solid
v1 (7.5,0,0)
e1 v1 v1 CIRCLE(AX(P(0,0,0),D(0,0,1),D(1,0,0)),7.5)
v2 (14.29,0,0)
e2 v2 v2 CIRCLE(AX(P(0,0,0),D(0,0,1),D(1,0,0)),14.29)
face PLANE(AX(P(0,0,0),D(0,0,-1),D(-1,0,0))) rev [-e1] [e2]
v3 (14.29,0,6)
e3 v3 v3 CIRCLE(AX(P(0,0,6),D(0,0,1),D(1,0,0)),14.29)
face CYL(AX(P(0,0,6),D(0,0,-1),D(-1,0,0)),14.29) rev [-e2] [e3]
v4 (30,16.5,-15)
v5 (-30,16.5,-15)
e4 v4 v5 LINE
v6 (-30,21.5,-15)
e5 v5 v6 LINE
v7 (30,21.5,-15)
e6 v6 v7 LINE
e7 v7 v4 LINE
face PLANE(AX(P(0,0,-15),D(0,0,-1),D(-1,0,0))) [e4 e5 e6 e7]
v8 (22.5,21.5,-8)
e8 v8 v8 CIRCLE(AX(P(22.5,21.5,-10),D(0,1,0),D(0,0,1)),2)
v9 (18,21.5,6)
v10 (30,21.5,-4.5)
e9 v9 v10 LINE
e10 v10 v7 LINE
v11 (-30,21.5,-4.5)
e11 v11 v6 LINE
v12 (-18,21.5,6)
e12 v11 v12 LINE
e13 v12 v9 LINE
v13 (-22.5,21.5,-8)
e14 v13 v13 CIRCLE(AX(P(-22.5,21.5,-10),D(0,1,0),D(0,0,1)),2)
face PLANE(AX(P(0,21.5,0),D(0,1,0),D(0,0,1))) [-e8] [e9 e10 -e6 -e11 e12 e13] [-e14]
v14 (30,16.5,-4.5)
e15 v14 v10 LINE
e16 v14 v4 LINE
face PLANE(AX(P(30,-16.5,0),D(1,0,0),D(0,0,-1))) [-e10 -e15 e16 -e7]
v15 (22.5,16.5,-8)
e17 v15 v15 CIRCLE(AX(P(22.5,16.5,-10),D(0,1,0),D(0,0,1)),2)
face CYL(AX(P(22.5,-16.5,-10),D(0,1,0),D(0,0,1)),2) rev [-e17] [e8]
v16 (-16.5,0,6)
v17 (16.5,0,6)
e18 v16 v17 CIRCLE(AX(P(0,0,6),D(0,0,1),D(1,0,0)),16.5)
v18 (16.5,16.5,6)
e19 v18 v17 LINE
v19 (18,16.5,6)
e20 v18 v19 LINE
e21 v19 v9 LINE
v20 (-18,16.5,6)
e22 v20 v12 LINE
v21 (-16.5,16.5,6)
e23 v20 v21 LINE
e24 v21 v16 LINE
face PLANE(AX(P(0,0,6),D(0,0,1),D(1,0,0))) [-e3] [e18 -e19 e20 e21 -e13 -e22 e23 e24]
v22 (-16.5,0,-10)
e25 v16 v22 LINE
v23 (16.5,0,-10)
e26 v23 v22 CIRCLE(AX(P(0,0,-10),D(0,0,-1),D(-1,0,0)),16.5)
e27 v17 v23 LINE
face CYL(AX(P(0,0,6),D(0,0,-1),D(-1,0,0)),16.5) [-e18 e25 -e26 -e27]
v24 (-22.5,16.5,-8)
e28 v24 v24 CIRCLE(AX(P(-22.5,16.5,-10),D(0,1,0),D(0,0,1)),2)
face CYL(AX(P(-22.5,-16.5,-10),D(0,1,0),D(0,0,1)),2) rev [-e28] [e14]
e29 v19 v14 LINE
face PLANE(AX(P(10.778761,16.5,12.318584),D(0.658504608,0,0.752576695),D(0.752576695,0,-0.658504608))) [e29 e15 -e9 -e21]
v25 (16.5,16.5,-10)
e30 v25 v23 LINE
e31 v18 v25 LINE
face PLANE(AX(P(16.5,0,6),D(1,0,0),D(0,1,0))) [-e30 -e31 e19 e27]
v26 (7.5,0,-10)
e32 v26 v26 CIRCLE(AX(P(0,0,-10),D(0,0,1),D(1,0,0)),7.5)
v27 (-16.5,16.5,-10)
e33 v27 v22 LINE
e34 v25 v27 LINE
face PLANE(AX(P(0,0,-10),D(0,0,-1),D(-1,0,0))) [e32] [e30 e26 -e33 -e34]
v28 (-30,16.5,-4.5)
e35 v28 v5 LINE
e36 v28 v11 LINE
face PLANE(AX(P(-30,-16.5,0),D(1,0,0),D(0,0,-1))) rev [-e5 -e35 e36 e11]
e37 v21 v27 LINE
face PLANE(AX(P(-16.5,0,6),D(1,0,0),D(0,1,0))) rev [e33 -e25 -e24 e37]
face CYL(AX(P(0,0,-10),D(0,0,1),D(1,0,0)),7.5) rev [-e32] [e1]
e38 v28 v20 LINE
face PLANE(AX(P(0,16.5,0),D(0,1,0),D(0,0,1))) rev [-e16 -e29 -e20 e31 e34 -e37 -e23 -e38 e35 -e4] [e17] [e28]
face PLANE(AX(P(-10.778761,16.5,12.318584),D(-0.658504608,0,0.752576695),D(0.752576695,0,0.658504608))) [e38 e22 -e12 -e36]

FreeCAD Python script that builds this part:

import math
import FreeCAD as App
import Part
import Sketcher
from FreeCAD import Vector

doc = App.newDocument("Part")
body = doc.addObject("PartDesign::Body", "Body")

# Sketch on XY plane
sketch1 = body.newObject("Sketcher::SketchObject", "Sketch")
sketch1.AttachmentSupport = (doc.getObject("XY_Plane"), [""])
sketch1.MapMode = "FlatFace"
sketch1.addGeometry([
    Part.Circle(Vector(0, 0, 0), Vector(0, 0, 1), 16.5),
    Part.Circle(Vector(0, 0, 0), Vector(0, 0, 1), 14.29),
], False)
sketch1.addConstraint([
    Sketcher.Constraint("Coincident", 0, 3, -1, 1),
    Sketcher.Constraint("Coincident", 1, 3, -1, 1),
    Sketcher.Constraint("Diameter", 0, 33.0),
    Sketcher.Constraint("Diameter", 1, 28.58),
])
pad1 = body.newObject("PartDesign::Pad", "Pad")
pad1.Profile = sketch1
pad1.Length = 6

# Sketch on XY plane
sketch2 = body.newObject("Sketcher::SketchObject", "Sketch001")
sketch2.AttachmentSupport = (doc.getObject("XY_Plane"), [""])
sketch2.MapMode = "FlatFace"
sketch2.AttachmentOffset = App.Placement(Vector(0, 0, -10), App.Rotation())
sketch2.addGeometry(Part.Circle(Vector(0, 0, 0), Vector(0, 0, 1), 16.5), False)
sketch2.addConstraint([
    Sketcher.Constraint("Coincident", 0, 3, -1, 1),
    Sketcher.Constraint("Diameter", 0, 33.0),
])
pad2 = body.newObject("PartDesign::Pad", "Pad001")
pad2.Profile = sketch2
pad2.Length = 10
body2 = doc.addObject("PartDesign::Body", "Body001")

# Sketch on XZ plane
sketch3 = body2.newObject("Sketcher::SketchObject", "Sketch002")
sketch3.AttachmentSupport = (doc.getObject("XZ_Plane001"), [""])
sketch3.MapMode = "FlatFace"
sketch3.AttachmentOffset = App.Placement(Vector(0, 0, -16.5), App.Rotation())
sketch3.addGeometry([
    Part.LineSegment(Vector(40, -10, 0), Vector(-40, -10, 0)),
    Part.LineSegment(Vector(-40, -10, 0), Vector(-40, 10, 0)),
    Part.LineSegment(Vector(-40, 10, 0), Vector(40, 10, 0)),
    Part.LineSegment(Vector(40, 10, 0), Vector(40, -10, 0)),
], False)
sketch3.addConstraint([
    Sketcher.Constraint("Coincident", 0, 2, 1, 1),
    Sketcher.Constraint("Coincident", 1, 2, 2, 1),
    Sketcher.Constraint("Coincident", 2, 2, 3, 1),
    Sketcher.Constraint("Coincident", 3, 2, 0, 1),
    Sketcher.Constraint("Horizontal", 0),
    Sketcher.Constraint("Vertical", 1),
    Sketcher.Constraint("Horizontal", 2),
    Sketcher.Constraint("Vertical", 3),
    Sketcher.Constraint("Symmetric", 0, 2, 2, 2, -1, 1),
    Sketcher.Constraint("DistanceX", 0, 2, 0, 1, 80.0),
    Sketcher.Constraint("DistanceY", 1, 1, 1, 2, 20.0),
])
pad3 = body2.newObject("PartDesign::Pad", "Pad002")
pad3.Profile = sketch3
pad3.Length = 5
pad3.Reversed = True
body.AllowCompound = True
doc.recompute()

boolean = body.newObject("PartDesign::Boolean", "Boolean")
boolean.Type = "Fuse"
boolean.addObjects([body2])

# Sketch on XY plane
sketch4 = body.newObject("Sketcher::SketchObject", "Sketch003")
sketch4.AttachmentSupport = (doc.getObject("XY_Plane"), [""])
sketch4.MapMode = "FlatFace"
sketch4.AttachmentOffset = App.Placement(Vector(0, 0, -10), App.Rotation())
sketch4.addGeometry([
    Part.ArcOfCircle(Part.Circle(Vector(0, 0, 0), Vector(0, 0, 1), 16.5), math.radians(90), math.radians(180)),  # 0
    Part.LineSegment(Vector(0, 16.5, 0), Vector(-16.5, 16.5, 0)),  # 1
    Part.LineSegment(Vector(-16.5, 16.5, 0), Vector(-16.5, 0, 0)),  # 2
    Part.ArcOfCircle(Part.Circle(Vector(0, 0, 0), Vector(0, 0, 1), 16.5), math.radians(0), math.radians(90)),  # 3
    Part.LineSegment(Vector(16.5, 0, 0), Vector(16.5, 16.5, 0)),  # 4
    Part.LineSegment(Vector(16.5, 16.5, 0), Vector(0, 16.5, 0)),  # 5
], False)
sketch4.addConstraint([
    Sketcher.Constraint("Tangent", 0, 1, 1, 1),
    Sketcher.Constraint("Coincident", 1, 2, 2, 1),
    Sketcher.Constraint("Tangent", 2, 2, 0, 2),
    Sketcher.Constraint("Tangent", 3, 1, 4, 1),
    Sketcher.Constraint("Coincident", 4, 2, 5, 1),
    Sketcher.Constraint("Tangent", 5, 2, 3, 2),
    Sketcher.Constraint("Horizontal", 1),
    Sketcher.Constraint("Vertical", 2),
    Sketcher.Constraint("Vertical", 4),
    Sketcher.Constraint("Horizontal", 5),
    Sketcher.Constraint("Coincident", 0, 3, -1, 1),
    Sketcher.Constraint("Coincident", 3, 3, -1, 1),
    Sketcher.Constraint("Equal", 0, 3),
    Sketcher.Constraint("Radius", 0, 16.5),
])
pad4 = body.newObject("PartDesign::Pad", "Pad003")
pad4.Profile = sketch4
pad4.Length = 16

# Sketch on XZ plane
sketch5 = body.newObject("Sketcher::SketchObject", "Sketch004")
sketch5.AttachmentSupport = (doc.getObject("XZ_Plane"), [""])
sketch5.MapMode = "FlatFace"
sketch5.AttachmentOffset = App.Placement(Vector(0, 0, -21.5), App.Rotation())
sketch5.addGeometry([
    Part.LineSegment(Vector(-40, 10, 0), Vector(40, 10, 0)),  # 0
    Part.LineSegment(Vector(40, 10, 0), Vector(40, -10, 0)),  # 1
    Part.LineSegment(Vector(40, -10, 0), Vector(30, -10, 0)),  # 2
    Part.LineSegment(Vector(30, -10, 0), Vector(30, 6, 0)),  # 3
    Part.LineSegment(Vector(30, 6, 0), Vector(-30, 6, 0)),  # 4
    Part.LineSegment(Vector(-30, 6, 0), Vector(-30, -10, 0)),  # 5
    Part.LineSegment(Vector(-30, -10, 0), Vector(-40, -10, 0)),  # 6
    Part.LineSegment(Vector(-40, -10, 0), Vector(-40, 10, 0)),  # 7
    Part.Circle(Vector(22.5, -10, 0), Vector(0, 0, 1), 2),  # 8
    Part.Circle(Vector(-22.5, -10, 0), Vector(0, 0, 1), 2),  # 9
], False)
sketch5.addConstraint([
    Sketcher.Constraint("Coincident", 0, 2, 1, 1),
    Sketcher.Constraint("Coincident", 1, 2, 2, 1),
    Sketcher.Constraint("Coincident", 2, 2, 3, 1),
    Sketcher.Constraint("Coincident", 3, 2, 4, 1),
    Sketcher.Constraint("Coincident", 4, 2, 5, 1),
    Sketcher.Constraint("Coincident", 5, 2, 6, 1),
    Sketcher.Constraint("Coincident", 6, 2, 7, 1),
    Sketcher.Constraint("Coincident", 7, 2, 0, 1),
    Sketcher.Constraint("Horizontal", 0),
    Sketcher.Constraint("Vertical", 1),
    Sketcher.Constraint("Horizontal", 2),
    Sketcher.Constraint("Vertical", 3),
    Sketcher.Constraint("Horizontal", 4),
    Sketcher.Constraint("Vertical", 5),
    Sketcher.Constraint("Horizontal", 6),
    Sketcher.Constraint("Vertical", 7),
    Sketcher.Constraint("Equal", 8, 9),
    Sketcher.Constraint("Symmetric", 0, 2, 6, 2, -1, 1),
    Sketcher.Constraint("Symmetric", 8, 3, 9, 3, -2),
    Sketcher.Constraint("Symmetric", 2, 2, 5, 2, -2),
    Sketcher.Constraint("Horizontal", 9, 3, 1, 2),
    Sketcher.Constraint("Diameter", 8, 4.0),
    Sketcher.Constraint("DistanceX", 0, 1, 0, 2, 80.0),
    Sketcher.Constraint("DistanceX", 2, 2, 2, 1, 10.0),
    Sketcher.Constraint("DistanceY", 1, 2, 1, 1, 20.0),
    Sketcher.Constraint("DistanceY", 3, 1, 3, 2, 16.0),
    Sketcher.Constraint("DistanceX", 9, 3, 8, 3, 45.0),
])
pocket1 = body.newObject("PartDesign::Pocket", "Pocket")
pocket1.Profile = sketch5
pocket1.Type = "ThroughAll"
pocket1.Reversed = True

# Sketch on XY plane
sketch6 = body.newObject("Sketcher::SketchObject", "Sketch005")
sketch6.AttachmentSupport = (doc.getObject("XY_Plane"), [""])
sketch6.MapMode = "FlatFace"
sketch6.addGeometry(Part.Circle(Vector(0, 0, 0), Vector(0, 0, 1), 7.5), False)
sketch6.addConstraint([
    Sketcher.Constraint("Coincident", 0, 3, -1, 1),
    Sketcher.Constraint("Diameter", 0, 15.0),
])
pocket2 = body.newObject("PartDesign::Pocket", "Pocket001")
pocket2.Profile = sketch6
pocket2.Type = "ThroughAll"

# Sketch on XY plane
sketch7 = body.newObject("Sketcher::SketchObject", "Sketch006")
sketch7.AttachmentSupport = (doc.getObject("XY_Plane"), [""])
sketch7.MapMode = "FlatFace"
sketch7.AttachmentOffset = App.Placement(Vector(0, 0, -10), App.Rotation())
sketch7.addGeometry([
    Part.LineSegment(Vector(30, 21.5, 0), Vector(30, 16.5, 0)),
    Part.LineSegment(Vector(30, 16.5, 0), Vector(-30, 16.5, 0)),
    Part.LineSegment(Vector(-30, 16.5, 0), Vector(-30, 21.5, 0)),
    Part.LineSegment(Vector(-30, 21.5, 0), Vector(30, 21.5, 0)),
], False)
sketch7.addConstraint([
    Sketcher.Constraint("Coincident", 0, 2, 1, 1),
    Sketcher.Constraint("Coincident", 1, 2, 2, 1),
    Sketcher.Constraint("Coincident", 2, 2, 3, 1),
    Sketcher.Constraint("Coincident", 3, 2, 0, 1),
    Sketcher.Constraint("Vertical", 0),
    Sketcher.Constraint("Horizontal", 1),
    Sketcher.Constraint("Vertical", 2),
    Sketcher.Constraint("Horizontal", 3),
    Sketcher.Constraint("DistanceX", 1, 2, 1, 1, 60.0),
    Sketcher.Constraint("DistanceY", 0, 2, 0, 1, 5.0),
    Sketcher.Constraint("DistanceX", -1, 1, 0, 2, 30.0),
    Sketcher.Constraint("DistanceY", -1, 1, 0, 2, 16.5),
])
pad5 = body.newObject("PartDesign::Pad", "Pad004")
pad5.Profile = sketch7
pad5.Length = 5
pad5.Reversed = True

# Sketch on XZ plane
sketch8 = body.newObject("Sketcher::SketchObject", "Sketch007")
sketch8.AttachmentSupport = (doc.getObject("XZ_Plane"), [""])
sketch8.MapMode = "FlatFace"
sketch8.AttachmentOffset = App.Placement(Vector(0, 0, -21.5), App.Rotation())
sketch8.addGeometry([
    Part.LineSegment(Vector(-18, 6, 0), Vector(-30, -4.5, 0)),  # 0
    Part.LineSegment(Vector(-30, -4.5, 0), Vector(-30, 6, 0)),  # 1
    Part.LineSegment(Vector(-30, 6, 0), Vector(-18, 6, 0)),  # 2
    Part.LineSegment(Vector(30, -4.5, 0), Vector(18, 6, 0)),  # 3
    Part.LineSegment(Vector(18, 6, 0), Vector(30, 6, 0)),  # 4
    Part.LineSegment(Vector(30, 6, 0), Vector(30, -4.5, 0)),  # 5
    Part.Circle(Vector(22.5, -10, 0), Vector(0, 0, 1), 2),  # 6
    Part.Circle(Vector(-22.5, -10, 0), Vector(0, 0, 1), 2),  # 7
], False)
sketch8.addConstraint([
    Sketcher.Constraint("Coincident", 0, 2, 1, 1),
    Sketcher.Constraint("Coincident", 1, 2, 2, 1),
    Sketcher.Constraint("Coincident", 2, 2, 0, 1),
    Sketcher.Constraint("Coincident", 3, 2, 4, 1),
    Sketcher.Constraint("Coincident", 4, 2, 5, 1),
    Sketcher.Constraint("Coincident", 5, 2, 3, 1),
    Sketcher.Constraint("Vertical", 1),
    Sketcher.Constraint("Horizontal", 2),
    Sketcher.Constraint("Horizontal", 4),
    Sketcher.Constraint("Vertical", 5),
    Sketcher.Constraint("Equal", 6, 7),
    Sketcher.Constraint("Symmetric", 6, 3, 7, 3, -2),
    Sketcher.Constraint("Symmetric", 2, 2, 3, 2, -2),
    Sketcher.Constraint("Symmetric", 0, 2, 5, 2, -2),
    Sketcher.Constraint("Diameter", 6, 4.0),
    Sketcher.Constraint("DistanceX", 2, 1, 2, 2, 12.0),
    Sketcher.Constraint("DistanceY", 1, 1, 1, 2, 10.5),
    Sketcher.Constraint("DistanceY", 6, 3, -1, 1, 10.0),
    Sketcher.Constraint("DistanceX", 0, 2, -1, 1, 30.0),
    Sketcher.Constraint("DistanceY", -1, 1, 1, 2, 6.0),
    Sketcher.Constraint("DistanceX", 7, 3, 6, 3, 45.0),
])
pocket3 = body.newObject("PartDesign::Pocket", "Pocket002")
pocket3.Profile = sketch8
pocket3.Length = 5
pocket3.Reversed = True

doc.recompute()
